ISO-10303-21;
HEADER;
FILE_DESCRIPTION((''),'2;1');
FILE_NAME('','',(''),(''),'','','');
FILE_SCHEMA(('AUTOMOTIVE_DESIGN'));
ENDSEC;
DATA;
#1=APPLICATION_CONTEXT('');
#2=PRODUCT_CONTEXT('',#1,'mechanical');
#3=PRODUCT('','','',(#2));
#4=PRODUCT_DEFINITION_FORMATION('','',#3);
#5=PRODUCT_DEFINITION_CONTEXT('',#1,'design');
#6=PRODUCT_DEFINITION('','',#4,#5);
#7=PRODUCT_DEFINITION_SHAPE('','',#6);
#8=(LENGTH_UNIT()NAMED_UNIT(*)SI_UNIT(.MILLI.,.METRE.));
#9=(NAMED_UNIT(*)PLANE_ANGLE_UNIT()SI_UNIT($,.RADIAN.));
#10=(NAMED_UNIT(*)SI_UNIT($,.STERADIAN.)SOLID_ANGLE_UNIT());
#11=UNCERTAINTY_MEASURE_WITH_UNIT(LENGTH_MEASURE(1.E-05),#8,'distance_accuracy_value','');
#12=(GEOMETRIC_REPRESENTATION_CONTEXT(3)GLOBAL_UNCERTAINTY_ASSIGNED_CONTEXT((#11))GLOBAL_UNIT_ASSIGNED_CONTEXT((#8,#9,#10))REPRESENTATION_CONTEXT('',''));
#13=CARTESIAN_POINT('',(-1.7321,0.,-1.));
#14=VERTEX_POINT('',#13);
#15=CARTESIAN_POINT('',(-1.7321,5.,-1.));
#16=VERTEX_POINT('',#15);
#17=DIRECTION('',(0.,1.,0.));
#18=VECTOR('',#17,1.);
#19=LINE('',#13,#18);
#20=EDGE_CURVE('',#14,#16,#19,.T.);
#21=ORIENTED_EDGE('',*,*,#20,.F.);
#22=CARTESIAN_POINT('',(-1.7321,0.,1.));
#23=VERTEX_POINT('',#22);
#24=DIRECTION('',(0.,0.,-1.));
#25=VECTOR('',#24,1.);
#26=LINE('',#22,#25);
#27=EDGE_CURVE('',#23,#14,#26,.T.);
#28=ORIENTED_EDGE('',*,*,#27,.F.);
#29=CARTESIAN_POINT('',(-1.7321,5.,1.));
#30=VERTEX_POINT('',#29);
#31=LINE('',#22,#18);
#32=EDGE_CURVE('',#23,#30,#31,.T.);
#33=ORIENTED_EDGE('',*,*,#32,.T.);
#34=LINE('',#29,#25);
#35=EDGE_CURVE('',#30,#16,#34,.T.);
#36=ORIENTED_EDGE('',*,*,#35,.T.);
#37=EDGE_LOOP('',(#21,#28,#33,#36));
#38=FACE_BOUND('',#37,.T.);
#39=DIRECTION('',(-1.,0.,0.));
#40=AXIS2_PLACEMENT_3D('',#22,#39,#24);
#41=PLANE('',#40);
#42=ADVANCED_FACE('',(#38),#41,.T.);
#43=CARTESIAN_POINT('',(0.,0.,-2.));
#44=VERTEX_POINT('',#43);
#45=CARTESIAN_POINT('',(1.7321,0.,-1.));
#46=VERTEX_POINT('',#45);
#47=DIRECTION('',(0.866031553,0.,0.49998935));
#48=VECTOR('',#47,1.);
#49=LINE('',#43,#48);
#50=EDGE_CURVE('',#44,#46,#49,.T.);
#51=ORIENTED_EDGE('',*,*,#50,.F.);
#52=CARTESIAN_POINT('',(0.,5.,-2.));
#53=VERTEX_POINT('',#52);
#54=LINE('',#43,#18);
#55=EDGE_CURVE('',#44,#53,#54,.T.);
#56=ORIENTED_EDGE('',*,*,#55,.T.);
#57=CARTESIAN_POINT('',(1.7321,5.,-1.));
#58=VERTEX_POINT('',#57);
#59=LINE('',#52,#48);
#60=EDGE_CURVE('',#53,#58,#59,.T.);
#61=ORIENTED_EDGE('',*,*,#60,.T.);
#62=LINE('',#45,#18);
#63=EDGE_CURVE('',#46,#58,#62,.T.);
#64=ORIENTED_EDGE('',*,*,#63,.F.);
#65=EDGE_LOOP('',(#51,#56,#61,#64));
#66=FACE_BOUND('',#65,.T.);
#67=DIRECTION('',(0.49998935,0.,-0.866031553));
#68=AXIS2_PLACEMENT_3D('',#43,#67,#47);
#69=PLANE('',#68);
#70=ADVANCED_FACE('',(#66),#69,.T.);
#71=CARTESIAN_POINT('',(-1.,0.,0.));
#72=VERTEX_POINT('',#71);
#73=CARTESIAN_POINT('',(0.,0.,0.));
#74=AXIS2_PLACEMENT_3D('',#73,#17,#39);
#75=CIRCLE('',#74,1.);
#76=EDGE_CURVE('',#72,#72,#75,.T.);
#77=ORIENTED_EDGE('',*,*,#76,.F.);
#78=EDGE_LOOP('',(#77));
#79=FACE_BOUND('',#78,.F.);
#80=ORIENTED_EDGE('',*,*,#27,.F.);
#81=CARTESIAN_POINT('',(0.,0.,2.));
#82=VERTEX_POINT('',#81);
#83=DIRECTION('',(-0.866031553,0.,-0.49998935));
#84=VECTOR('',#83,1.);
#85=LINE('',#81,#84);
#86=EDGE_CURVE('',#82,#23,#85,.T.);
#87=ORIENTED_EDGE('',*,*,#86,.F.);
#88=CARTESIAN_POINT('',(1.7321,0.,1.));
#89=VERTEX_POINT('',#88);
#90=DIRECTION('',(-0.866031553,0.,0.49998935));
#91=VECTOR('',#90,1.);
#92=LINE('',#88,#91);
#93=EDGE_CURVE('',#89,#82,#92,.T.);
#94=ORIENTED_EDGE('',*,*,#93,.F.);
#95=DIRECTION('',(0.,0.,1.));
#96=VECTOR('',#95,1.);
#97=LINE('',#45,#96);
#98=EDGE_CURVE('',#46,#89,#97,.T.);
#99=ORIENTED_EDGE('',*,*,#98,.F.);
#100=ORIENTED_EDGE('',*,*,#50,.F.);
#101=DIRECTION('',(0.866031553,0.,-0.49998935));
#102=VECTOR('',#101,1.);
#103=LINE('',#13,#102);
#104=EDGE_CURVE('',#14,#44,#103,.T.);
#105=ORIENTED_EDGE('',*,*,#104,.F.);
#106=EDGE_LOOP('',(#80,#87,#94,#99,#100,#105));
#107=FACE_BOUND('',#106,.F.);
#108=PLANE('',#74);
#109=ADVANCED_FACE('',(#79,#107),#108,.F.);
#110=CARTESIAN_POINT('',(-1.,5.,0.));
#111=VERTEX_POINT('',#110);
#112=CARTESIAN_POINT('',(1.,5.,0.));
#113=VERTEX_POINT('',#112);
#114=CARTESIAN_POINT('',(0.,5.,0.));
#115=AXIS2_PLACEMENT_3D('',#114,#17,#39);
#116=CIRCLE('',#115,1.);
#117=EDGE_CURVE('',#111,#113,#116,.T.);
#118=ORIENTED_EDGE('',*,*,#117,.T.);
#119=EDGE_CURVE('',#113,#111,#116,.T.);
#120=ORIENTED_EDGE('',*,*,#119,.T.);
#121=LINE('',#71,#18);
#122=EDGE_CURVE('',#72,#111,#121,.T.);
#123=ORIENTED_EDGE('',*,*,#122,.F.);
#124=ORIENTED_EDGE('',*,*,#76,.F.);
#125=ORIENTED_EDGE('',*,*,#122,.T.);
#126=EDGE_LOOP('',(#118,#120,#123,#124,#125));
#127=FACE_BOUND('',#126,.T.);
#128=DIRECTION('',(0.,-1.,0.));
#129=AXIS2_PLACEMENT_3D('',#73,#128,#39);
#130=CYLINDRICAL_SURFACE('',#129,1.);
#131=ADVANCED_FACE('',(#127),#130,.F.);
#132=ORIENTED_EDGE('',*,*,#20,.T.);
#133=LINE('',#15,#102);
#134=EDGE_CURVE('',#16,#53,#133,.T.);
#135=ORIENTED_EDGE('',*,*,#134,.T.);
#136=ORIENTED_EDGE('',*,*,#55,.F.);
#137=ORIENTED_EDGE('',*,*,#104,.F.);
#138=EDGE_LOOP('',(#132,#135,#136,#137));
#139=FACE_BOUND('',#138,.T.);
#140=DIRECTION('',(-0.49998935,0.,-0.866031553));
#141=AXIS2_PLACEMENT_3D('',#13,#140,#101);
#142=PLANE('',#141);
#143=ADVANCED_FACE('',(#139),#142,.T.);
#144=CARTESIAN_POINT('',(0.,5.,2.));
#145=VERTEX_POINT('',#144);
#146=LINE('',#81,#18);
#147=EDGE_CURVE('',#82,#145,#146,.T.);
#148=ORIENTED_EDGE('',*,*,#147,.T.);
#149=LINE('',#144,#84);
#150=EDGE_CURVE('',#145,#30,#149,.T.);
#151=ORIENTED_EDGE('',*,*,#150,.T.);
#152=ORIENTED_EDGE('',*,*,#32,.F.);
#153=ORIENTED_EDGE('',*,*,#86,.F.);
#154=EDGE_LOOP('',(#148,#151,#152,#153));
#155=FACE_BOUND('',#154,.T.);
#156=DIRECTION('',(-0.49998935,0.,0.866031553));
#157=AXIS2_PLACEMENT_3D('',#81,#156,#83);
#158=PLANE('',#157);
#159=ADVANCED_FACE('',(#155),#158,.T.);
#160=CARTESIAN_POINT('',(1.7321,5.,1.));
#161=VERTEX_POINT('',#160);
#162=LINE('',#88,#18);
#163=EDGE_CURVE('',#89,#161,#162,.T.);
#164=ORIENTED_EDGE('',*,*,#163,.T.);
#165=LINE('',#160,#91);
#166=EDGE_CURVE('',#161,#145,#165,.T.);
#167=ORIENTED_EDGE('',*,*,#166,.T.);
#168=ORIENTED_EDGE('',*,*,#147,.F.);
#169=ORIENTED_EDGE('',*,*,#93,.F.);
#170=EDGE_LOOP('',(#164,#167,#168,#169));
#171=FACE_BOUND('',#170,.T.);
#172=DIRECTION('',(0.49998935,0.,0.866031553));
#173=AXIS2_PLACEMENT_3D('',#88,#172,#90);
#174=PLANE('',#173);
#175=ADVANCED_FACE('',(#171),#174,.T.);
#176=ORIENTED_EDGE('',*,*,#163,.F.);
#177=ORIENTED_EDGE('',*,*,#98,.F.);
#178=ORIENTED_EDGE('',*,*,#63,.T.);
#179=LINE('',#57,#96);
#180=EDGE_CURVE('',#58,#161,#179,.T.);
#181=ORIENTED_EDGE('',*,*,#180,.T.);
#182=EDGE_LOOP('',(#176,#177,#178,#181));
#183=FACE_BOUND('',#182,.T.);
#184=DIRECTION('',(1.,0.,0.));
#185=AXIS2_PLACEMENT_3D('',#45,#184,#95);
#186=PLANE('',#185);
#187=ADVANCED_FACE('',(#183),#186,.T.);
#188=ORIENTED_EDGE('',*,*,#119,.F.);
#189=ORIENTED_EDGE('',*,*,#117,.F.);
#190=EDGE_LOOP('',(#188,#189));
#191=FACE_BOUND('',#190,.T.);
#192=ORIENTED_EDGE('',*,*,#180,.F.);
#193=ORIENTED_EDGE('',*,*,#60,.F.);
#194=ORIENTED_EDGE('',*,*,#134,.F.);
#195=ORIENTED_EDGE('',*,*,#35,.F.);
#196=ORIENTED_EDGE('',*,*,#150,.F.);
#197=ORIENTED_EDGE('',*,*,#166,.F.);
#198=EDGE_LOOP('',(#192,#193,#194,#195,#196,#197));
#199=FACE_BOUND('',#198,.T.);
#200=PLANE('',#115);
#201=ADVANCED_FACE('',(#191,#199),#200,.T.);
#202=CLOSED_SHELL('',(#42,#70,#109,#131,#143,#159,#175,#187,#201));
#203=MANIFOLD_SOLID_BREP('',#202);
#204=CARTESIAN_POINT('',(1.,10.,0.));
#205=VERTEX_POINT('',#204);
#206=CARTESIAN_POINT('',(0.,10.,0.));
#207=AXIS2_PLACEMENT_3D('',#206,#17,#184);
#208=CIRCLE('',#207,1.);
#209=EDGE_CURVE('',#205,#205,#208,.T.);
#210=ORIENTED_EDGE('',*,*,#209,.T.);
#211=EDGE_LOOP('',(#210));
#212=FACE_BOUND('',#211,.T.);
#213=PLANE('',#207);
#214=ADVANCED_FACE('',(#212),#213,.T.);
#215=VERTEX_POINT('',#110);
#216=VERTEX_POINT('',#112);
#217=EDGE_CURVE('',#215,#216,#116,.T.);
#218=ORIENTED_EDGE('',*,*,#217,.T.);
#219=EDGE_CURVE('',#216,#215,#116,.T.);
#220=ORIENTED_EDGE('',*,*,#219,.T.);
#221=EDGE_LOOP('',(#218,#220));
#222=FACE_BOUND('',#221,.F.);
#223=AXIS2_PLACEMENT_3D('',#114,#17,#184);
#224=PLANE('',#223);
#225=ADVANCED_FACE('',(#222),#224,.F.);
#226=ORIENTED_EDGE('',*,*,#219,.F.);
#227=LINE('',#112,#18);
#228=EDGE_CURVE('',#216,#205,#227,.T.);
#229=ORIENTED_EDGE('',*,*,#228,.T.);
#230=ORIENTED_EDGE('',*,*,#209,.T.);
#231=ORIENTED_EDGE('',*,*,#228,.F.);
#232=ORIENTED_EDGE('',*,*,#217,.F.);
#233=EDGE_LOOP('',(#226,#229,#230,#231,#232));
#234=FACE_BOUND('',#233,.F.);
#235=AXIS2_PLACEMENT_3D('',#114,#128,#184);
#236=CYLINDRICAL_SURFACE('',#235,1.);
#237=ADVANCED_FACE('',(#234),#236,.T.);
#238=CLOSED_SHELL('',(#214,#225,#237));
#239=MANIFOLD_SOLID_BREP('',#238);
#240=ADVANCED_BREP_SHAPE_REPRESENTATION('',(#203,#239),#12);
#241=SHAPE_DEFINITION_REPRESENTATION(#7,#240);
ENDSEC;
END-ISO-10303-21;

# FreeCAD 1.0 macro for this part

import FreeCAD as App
import Part
import Sketcher
from FreeCAD import Vector


def add_polygon(sketch, points):
    """Adds a closed chain of lines whose ends are joined by coincident constraints."""
    first, n = sketch.GeometryCount, len(points)
    for a, b in zip(points, points[1:] + points[:1]):
        sketch.addGeometry(Part.LineSegment(App.Vector(*a, 0), App.Vector(*b, 0)), False)
    for i in range(n):
        sketch.addConstraint(Sketcher.Constraint("Coincident", first + i, 2, first + (i + 1) % n, 1))

doc = App.newDocument("Part")
body = doc.addObject("PartDesign::Body", "Body")
body.AllowCompound = True

sketch1 = body.newObject("Sketcher::SketchObject", "Sketch")
sketch1.AttachmentSupport = (doc.getObject("XZ_Plane"), [""])
sketch1.MapMode = "FlatFace"
add_polygon(sketch1, [(1.7, -1), (0, -2), (-1.7, -1), (-1.7, 1), (0, 2), (1.7, 1)])
sketch1.addGeometry(Part.Circle(Vector(0, 0, 0), Vector(0, 0, 1), 1), False)
sketch1.addConstraint([
    Sketcher.Constraint("Vertical", 2),
    Sketcher.Constraint("Vertical", 5),
    Sketcher.Constraint("Coincident", 6, 3, -1, 1),
    Sketcher.Constraint("Symmetric", 0, 2, 3, 2, -1, 1),
    Sketcher.Constraint("Symmetric", 1, 2, 4, 2, -1, 1),
    Sketcher.Constraint("PointOnObject", 0, 2, -2),
    Sketcher.Constraint("Parallel", 0, 3),
    Sketcher.Constraint("Horizontal", 2, 2, 4, 2),
    Sketcher.Constraint("Diameter", 6, 2.0),
    Sketcher.Constraint("DistanceY", 2, 1, 2, 2, 2.0),
    Sketcher.Constraint("Distance", 0, 2.0),
    Sketcher.Constraint("DistanceY", 0, 2, -1, 1, 2.0),
])
pad1 = body.newObject("PartDesign::Pad", "Pad")
pad1.Profile = sketch1
pad1.Length = 5
pad1.Reversed = True

sketch2 = body.newObject("Sketcher::SketchObject", "Sketch001")
sketch2.AttachmentSupport = (doc.getObject("XZ_Plane"), [""])
sketch2.MapMode = "FlatFace"
sketch2.AttachmentOffset = App.Placement(Vector(0, 0, -5), App.Rotation())
sketch2.addGeometry(Part.Circle(Vector(0, 0, 0), Vector(0, 0, 1), 1), False)
sketch2.addConstraint([
    Sketcher.Constraint("Coincident", 0, 3, -1, 1),
    Sketcher.Constraint("Diameter", 0, 2.0),
])
pad2 = body.newObject("PartDesign::Pad", "Pad001")
pad2.Profile = sketch2
pad2.Length = 5
pad2.Reversed = True

doc.recompute()
